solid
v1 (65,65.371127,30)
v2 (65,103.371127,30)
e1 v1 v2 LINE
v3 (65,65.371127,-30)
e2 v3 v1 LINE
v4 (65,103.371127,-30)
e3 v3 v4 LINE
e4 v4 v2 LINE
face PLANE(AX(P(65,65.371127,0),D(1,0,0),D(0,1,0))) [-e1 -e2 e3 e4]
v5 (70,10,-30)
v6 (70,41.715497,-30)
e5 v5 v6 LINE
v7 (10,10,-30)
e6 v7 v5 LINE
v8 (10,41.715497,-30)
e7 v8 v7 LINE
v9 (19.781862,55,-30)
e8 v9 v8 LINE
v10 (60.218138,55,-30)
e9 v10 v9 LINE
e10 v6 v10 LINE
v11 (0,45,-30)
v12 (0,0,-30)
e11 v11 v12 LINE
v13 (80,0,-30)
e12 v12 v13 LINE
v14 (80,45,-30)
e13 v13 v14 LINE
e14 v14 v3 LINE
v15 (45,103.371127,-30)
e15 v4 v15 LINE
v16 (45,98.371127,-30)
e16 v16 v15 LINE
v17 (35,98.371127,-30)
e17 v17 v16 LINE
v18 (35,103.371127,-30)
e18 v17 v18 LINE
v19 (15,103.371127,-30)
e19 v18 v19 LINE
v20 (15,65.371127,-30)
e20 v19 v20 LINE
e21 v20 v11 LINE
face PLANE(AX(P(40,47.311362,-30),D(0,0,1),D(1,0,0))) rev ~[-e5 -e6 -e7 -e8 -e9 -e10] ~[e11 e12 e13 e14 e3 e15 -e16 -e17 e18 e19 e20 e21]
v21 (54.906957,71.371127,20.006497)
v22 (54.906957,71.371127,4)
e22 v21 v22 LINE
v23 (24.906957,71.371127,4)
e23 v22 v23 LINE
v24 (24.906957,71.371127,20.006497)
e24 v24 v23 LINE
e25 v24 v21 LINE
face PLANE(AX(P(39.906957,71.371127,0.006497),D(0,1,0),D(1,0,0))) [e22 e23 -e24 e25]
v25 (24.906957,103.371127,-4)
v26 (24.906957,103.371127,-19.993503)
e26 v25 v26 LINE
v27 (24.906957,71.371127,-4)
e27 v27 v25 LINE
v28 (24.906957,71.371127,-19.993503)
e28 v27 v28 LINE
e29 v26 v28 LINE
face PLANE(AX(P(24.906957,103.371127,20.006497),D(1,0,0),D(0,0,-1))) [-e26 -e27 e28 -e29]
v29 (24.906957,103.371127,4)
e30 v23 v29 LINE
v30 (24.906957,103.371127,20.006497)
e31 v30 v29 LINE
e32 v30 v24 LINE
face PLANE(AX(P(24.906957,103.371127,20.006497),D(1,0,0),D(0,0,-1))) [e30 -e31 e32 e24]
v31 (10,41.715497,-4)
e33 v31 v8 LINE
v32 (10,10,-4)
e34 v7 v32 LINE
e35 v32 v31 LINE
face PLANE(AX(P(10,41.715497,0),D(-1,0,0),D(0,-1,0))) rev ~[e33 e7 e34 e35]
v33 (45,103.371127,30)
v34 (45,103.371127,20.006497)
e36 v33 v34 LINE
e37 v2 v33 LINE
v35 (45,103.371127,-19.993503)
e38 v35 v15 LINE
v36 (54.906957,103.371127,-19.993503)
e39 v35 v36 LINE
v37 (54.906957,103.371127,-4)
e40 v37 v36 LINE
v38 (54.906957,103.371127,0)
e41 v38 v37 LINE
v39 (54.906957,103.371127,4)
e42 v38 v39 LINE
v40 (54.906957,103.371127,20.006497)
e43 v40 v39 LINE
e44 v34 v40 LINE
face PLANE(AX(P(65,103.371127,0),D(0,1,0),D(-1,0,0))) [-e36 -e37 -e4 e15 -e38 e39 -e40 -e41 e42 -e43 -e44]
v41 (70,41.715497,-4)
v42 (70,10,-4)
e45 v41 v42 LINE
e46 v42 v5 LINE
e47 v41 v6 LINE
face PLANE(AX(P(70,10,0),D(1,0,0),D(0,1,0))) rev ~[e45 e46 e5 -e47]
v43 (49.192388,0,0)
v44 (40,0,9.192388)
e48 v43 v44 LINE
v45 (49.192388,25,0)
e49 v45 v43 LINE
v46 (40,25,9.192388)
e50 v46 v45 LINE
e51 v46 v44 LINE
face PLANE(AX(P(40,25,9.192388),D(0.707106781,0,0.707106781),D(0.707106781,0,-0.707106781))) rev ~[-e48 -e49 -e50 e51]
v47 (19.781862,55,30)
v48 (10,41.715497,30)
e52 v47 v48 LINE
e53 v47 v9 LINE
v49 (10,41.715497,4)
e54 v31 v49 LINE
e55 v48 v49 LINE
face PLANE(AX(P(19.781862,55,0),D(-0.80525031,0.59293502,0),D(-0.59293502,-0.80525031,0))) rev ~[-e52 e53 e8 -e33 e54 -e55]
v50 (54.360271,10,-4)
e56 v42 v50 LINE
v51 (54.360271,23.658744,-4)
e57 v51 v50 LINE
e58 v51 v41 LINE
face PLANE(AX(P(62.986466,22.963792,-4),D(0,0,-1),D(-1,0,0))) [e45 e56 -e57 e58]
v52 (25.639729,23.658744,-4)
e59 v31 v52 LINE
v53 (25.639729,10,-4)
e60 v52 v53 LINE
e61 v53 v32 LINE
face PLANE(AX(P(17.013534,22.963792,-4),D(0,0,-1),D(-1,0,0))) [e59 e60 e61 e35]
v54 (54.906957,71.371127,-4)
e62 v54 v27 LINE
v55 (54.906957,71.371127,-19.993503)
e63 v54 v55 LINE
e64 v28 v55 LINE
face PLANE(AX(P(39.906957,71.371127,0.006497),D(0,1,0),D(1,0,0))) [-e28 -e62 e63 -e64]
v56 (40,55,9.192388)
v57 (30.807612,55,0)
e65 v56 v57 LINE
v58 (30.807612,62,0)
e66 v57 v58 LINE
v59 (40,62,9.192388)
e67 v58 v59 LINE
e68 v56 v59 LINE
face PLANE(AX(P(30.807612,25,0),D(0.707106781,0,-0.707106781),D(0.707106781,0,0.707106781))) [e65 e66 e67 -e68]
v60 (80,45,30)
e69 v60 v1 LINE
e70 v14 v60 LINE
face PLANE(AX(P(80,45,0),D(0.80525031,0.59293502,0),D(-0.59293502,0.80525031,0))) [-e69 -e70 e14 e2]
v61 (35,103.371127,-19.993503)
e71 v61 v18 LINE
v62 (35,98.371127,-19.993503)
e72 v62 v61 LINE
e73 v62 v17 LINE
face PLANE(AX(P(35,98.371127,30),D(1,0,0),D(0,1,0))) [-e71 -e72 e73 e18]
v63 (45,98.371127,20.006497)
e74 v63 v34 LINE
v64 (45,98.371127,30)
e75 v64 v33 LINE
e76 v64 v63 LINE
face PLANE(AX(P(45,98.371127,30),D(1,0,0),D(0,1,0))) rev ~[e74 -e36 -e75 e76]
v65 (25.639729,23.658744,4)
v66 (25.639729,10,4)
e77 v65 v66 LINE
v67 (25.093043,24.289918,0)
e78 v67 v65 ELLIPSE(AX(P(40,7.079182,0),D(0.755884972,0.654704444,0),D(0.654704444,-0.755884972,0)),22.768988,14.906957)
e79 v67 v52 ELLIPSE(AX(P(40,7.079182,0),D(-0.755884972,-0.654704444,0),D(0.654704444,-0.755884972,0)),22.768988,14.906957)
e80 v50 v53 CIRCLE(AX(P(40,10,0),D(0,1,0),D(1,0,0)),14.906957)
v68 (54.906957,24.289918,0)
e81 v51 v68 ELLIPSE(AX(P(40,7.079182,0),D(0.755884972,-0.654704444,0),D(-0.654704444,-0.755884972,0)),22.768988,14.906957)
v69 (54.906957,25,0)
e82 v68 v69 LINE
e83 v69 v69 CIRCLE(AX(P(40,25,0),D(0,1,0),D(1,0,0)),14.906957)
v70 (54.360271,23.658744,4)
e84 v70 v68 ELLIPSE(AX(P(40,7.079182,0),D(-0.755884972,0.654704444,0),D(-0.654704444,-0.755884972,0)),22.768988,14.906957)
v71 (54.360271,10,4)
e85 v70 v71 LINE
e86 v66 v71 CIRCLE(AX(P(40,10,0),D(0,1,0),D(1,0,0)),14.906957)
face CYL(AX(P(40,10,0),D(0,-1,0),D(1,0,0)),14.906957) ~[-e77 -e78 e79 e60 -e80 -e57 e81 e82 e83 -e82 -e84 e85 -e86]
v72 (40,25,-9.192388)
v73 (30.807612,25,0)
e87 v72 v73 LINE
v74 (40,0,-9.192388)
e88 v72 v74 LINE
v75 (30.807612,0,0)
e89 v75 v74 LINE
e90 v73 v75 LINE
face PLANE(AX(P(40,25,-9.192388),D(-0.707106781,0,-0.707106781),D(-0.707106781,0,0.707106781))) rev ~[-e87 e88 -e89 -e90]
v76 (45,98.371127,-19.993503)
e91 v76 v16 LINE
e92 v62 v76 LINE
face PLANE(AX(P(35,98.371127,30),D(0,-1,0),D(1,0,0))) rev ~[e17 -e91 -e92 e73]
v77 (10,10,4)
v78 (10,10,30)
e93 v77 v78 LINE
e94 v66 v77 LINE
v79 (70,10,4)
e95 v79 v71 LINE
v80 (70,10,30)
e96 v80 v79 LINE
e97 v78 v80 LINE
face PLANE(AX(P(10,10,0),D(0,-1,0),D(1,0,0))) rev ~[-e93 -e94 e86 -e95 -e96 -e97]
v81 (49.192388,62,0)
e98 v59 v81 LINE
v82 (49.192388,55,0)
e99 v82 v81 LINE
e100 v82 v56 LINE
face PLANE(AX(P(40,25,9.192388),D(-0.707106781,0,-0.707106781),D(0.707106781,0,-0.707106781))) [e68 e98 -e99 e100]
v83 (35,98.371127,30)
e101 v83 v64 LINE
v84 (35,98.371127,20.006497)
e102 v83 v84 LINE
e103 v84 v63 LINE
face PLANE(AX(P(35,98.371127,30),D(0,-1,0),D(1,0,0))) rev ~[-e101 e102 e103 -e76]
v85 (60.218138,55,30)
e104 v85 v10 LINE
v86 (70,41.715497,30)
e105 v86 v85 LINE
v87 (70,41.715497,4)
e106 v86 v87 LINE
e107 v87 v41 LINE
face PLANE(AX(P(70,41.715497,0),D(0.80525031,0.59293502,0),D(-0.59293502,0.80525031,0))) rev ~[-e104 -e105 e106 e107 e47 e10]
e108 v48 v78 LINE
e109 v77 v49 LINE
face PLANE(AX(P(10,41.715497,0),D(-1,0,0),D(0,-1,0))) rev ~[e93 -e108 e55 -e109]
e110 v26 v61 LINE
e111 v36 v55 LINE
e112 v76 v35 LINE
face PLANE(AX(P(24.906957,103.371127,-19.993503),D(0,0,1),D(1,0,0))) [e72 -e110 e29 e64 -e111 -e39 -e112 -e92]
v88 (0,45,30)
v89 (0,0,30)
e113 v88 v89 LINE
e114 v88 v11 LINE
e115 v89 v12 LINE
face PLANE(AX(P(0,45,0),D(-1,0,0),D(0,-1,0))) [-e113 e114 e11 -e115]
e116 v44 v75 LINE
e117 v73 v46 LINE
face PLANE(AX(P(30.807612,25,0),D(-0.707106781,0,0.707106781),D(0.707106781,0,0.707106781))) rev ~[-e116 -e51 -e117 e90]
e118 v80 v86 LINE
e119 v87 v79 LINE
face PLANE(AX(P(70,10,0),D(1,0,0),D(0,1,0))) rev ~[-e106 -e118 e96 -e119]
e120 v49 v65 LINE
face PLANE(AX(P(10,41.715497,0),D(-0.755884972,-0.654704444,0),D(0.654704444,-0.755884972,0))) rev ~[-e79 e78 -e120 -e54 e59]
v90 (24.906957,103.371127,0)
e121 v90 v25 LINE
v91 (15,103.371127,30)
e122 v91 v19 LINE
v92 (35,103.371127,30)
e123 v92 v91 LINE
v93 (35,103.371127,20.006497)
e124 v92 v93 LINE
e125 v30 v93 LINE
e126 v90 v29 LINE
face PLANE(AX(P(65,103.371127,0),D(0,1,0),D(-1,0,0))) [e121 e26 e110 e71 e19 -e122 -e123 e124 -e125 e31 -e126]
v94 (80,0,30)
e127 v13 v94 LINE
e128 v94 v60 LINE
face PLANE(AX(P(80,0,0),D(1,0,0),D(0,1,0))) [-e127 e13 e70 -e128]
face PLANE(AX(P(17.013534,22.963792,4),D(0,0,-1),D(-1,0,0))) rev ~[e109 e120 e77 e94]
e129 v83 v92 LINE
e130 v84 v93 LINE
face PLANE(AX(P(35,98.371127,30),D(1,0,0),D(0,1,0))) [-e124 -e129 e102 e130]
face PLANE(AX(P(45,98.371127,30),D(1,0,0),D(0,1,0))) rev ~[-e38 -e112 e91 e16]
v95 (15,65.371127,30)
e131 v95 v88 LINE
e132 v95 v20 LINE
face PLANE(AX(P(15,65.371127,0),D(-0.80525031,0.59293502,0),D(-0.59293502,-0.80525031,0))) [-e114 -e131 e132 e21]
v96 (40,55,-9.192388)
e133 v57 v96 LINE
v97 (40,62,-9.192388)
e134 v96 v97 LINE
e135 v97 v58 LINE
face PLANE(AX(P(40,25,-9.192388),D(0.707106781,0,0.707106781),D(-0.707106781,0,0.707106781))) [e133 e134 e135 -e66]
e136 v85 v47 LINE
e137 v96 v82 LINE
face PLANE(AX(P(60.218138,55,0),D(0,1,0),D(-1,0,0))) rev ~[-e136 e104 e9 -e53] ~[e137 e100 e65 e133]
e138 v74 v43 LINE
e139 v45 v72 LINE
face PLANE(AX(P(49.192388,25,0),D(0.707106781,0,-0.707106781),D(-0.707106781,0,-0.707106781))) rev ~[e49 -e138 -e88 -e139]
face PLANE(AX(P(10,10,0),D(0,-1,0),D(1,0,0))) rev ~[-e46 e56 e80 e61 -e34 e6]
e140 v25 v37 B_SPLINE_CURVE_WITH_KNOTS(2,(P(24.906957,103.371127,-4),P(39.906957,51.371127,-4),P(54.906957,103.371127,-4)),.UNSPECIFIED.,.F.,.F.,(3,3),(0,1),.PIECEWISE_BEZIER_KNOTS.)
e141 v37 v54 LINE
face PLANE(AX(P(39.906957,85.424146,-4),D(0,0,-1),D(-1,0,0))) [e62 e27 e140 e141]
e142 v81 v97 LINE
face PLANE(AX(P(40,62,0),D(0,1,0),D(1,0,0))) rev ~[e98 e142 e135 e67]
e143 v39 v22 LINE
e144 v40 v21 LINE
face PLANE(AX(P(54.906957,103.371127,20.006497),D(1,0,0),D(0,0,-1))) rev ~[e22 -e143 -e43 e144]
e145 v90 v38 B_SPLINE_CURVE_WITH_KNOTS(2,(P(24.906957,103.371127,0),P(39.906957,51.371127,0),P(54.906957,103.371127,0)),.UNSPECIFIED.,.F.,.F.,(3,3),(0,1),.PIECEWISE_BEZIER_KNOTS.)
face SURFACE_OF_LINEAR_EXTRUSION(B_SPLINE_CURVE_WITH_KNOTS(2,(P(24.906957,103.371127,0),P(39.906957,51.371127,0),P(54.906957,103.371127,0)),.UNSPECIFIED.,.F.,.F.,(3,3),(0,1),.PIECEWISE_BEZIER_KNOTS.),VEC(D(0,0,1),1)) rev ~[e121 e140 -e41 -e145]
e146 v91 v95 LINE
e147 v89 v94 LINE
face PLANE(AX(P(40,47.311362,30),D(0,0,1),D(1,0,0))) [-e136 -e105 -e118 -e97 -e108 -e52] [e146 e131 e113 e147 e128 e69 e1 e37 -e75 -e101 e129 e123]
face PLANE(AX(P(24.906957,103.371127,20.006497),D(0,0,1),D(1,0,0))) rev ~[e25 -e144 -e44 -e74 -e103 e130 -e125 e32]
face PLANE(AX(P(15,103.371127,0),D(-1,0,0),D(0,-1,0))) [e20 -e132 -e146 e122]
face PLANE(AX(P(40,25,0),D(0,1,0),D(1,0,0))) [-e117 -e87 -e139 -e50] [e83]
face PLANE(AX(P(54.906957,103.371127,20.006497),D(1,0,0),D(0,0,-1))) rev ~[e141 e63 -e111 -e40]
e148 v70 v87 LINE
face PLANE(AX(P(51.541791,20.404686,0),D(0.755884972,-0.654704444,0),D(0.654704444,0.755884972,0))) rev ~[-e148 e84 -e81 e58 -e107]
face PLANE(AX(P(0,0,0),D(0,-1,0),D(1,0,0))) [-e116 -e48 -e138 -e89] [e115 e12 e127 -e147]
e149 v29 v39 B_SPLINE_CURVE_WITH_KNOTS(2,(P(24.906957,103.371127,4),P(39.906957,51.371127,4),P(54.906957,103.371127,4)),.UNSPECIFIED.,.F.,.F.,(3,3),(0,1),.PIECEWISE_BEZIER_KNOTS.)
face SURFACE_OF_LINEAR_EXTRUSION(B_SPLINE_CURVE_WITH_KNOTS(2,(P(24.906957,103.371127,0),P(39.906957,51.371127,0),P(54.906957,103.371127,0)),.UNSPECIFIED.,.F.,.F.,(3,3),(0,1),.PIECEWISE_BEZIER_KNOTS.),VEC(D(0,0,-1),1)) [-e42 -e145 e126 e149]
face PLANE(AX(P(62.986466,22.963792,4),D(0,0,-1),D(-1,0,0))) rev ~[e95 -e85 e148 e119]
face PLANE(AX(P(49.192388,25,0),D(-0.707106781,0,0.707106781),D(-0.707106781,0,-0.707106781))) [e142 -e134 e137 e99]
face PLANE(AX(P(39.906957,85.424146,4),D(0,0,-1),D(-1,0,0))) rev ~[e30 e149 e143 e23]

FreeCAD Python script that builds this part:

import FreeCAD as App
import Part
import Sketcher


def add_polygon(sketch, points):
    """Adds a closed chain of lines whose ends are joined by coincident constraints."""
    first, n = sketch.GeometryCount, len(points)
    for a, b in zip(points, points[1:] + points[:1]):
        sketch.addGeometry(Part.LineSegment(App.Vector(*a, 0), App.Vector(*b, 0)), False)
    for i in range(n):
        sketch.addConstraint(Sketcher.Constraint("Coincident", first + i, 2, first + (i + 1) % n, 1))

doc = App.newDocument("Part")
params = doc.addObject("Spreadsheet::Sheet", "Params")
for row, (alias, value) in enumerate([
    ("sketch1_width", "80 mm"),
    ("sketch1_width2", "50 mm"),
    ("sketch1_width3", "60 mm"),
    ("sketch1_height", "45 mm"),
    ("sketch1_height2", "38 mm"),
    ("pad1_length", "30 mm"),
    ("pad1_length2", "30 mm"),
    ("sketch2_width", "30 mm"),
    ("sketch2_height", "40 mm"),
    ("pocket1_length", "32 mm"),
    ("sketch3_width", "10 mm"),
    ("pad2_length", "15 mm"),
    ("sketch5_length", "13 mm"),
    ("pocket3_length", "37 mm"),
    ("pocket3_length2", "26 mm"),
    ("pad3_length", "4 mm"),
    ("pad3_length2", "4 mm"),
    ("sketch7_height", "32 mm"),
    ("pad4_length", "4 mm"),
    ("pad4_length2", "4 mm"),
], start=1):
    params.set(f"A{row}", alias)
    params.set(f"B{row}", "=" + value)
    params.setAlias(f"B{row}", alias)

body = doc.addObject("PartDesign::Body", "Body")

sketch1 = body.newObject("Sketcher::SketchObject", "Sketch")
sketch1.AttachmentSupport = (doc.getObject("XY_Plane"), [""])
sketch1.MapMode = "FlatFace"
add_polygon(sketch1, [(0, 0), (80, 0), (80, 45), (65, 65), (65, 103), (15, 103), (15, 65), (0, 45)])
add_polygon(sketch1, [(70, 10), (10, 10), (10, 42), (20, 55), (60, 55), (70, 42)])
sketch1.addConstraint([
    Sketcher.Constraint("Horizontal", 0),
    Sketcher.Constraint("Vertical", 1),
    Sketcher.Constraint("Vertical", 3),
    Sketcher.Constraint("Horizontal", 4),
    Sketcher.Constraint("Vertical", 5),
    Sketcher.Constraint("Vertical", 7),
    Sketcher.Constraint("Horizontal", 8),
    Sketcher.Constraint("Vertical", 9),
    Sketcher.Constraint("Horizontal", 11),
    Sketcher.Constraint("Vertical", 13),
    Sketcher.Constraint("Coincident", 7, 2, -1, 1),
    Sketcher.Constraint("Parallel", 6, 10),
    Sketcher.Constraint("Parallel", 2, 12),
    Sketcher.Constraint("Horizontal", 2, 2, 5, 2),
    Sketcher.Constraint("Horizontal", 1, 2, 6, 2),
    Sketcher.Constraint("Horizontal", 9, 2, 12, 2),
    Sketcher.Constraint("Equal", 2, 6),
    Sketcher.Constraint("DistanceX", 0, 1, 0, 2, 80.0),
    Sketcher.Constraint("DistanceX", 4, 2, 4, 1, 50.0),
    Sketcher.Constraint("DistanceX", 8, 2, 8, 1, 60.0),
    Sketcher.Constraint("DistanceY", 1, 1, 1, 2, 45.0),
    Sketcher.Constraint("DistanceY", 3, 1, 3, 2, 38.0),
    Sketcher.Constraint("DistanceX", -1, 1, 8, 2, 10.0),
    Sketcher.Constraint("DistanceY", -1, 1, 8, 2, 10.0),
    Sketcher.Constraint("DistanceY", -1, 1, 10, 2, 55.0),
    Sketcher.Constraint("Distance", 2, 25.297882),
    Sketcher.Constraint("Distance", 10, 16.497359),
])
sketch1.setExpression("Constraints[31]", "Params.sketch1_width")
sketch1.setExpression("Constraints[32]", "Params.sketch1_width2")
sketch1.setExpression("Constraints[33]", "Params.sketch1_width3")
sketch1.setExpression("Constraints[34]", "Params.sketch1_height")
sketch1.setExpression("Constraints[35]", "Params.sketch1_height2")
pad1 = body.newObject("PartDesign::Pad", "Pad")
pad1.Profile = sketch1
pad1.Type = "TwoLengths"
pad1.setExpression("Length", "Params.pad1_length")
pad1.setExpression("Length2", "Params.pad1_length2")

sketch2 = body.newObject("Sketcher::SketchObject", "Sketch001")
sketch2.AttachmentSupport = (doc.getObject("XZ_Plane"), [""])
sketch2.MapMode = "FlatFace"
sketch2.AttachmentOffset = App.Placement(App.Vector(0, 0, -103.371127), App.Rotation())
add_polygon(sketch2, [(25, -20), (25, 20), (55, 20), (55, -20)])
sketch2.addConstraint([
    Sketcher.Constraint("Vertical", 0),
    Sketcher.Constraint("Horizontal", 1),
    Sketcher.Constraint("Vertical", 2),
    Sketcher.Constraint("Horizontal", 3),
    Sketcher.Constraint("DistanceX", 1, 1, 1, 2, 30.0),
    Sketcher.Constraint("DistanceY", 0, 1, 0, 2, 40.0),
    Sketcher.Constraint("DistanceX", -1, 1, 0, 2, 24.906957),
    Sketcher.Constraint("DistanceY", -1, 1, 0, 2, 20.006497),
])
sketch2.setExpression("Constraints[8]", "Params.sketch2_width")
sketch2.setExpression("Constraints[9]", "Params.sketch2_height")
pocket1 = body.newObject("PartDesign::Pocket", "Pocket")
pocket1.Profile = sketch2
pocket1.setExpression("Length", "Params.pocket1_length")
pocket1.Reversed = True

sketch3 = body.newObject("Sketcher::SketchObject", "Sketch002")
sketch3.AttachmentSupport = (doc.getObject("XY_Plane"), [""])
sketch3.MapMode = "FlatFace"
sketch3.AttachmentOffset = App.Placement(App.Vector(0, 0, 30), App.Rotation())
add_polygon(sketch3, [(35, 108), (35, 98), (45, 98), (45, 108)])
sketch3.addConstraint([
    Sketcher.Constraint("Vertical", 0),
    Sketcher.Constraint("Horizontal", 1),
    Sketcher.Constraint("Vertical", 2),
    Sketcher.Constraint("Horizontal", 3),
    Sketcher.Constraint("Equal", 3, 0),
    Sketcher.Constraint("DistanceX", 1, 1, 1, 2, 10.0),
    Sketcher.Constraint("DistanceX", -1, 1, 0, 2, 35.0),
    Sketcher.Constraint("DistanceY", -1, 1, 0, 2, 98.371127),
])
sketch3.setExpression("Constraints[9]", "Params.sketch3_width")
pocket2 = body.newObject("PartDesign::Pocket", "Pocket001")
pocket2.Profile = sketch3
pocket2.Type = "ThroughAll"

sketch4 = body.newObject("Sketcher::SketchObject", "Sketch003")
sketch4.AttachmentSupport = (doc.getObject("XZ_Plane"), [""])
sketch4.MapMode = "FlatFace"
sketch4.AttachmentOffset = App.Placement(App.Vector(0, 0, -10), App.Rotation())
sketch4.addGeometry(Part.Circle(App.Vector(40, 0, 0), App.Vector(0, 0, 1), 15), False)
sketch4.addConstraint([
    Sketcher.Constraint("PointOnObject", 0, 3, -1),
    Sketcher.Constraint("DistanceX", -1, 1, 0, 3, 40.0),
    Sketcher.Constraint("Diameter", 0, 29.813915),
])
pad2 = body.newObject("PartDesign::Pad", "Pad001")
pad2.Profile = sketch4
pad2.setExpression("Length", "Params.pad2_length")
pad2.Reversed = True

sketch5 = body.newObject("Sketcher::SketchObject", "Sketch004")
sketch5.AttachmentSupport = (doc.getObject("XZ_Plane"), [""])
sketch5.MapMode = "FlatFace"
sketch5.AttachmentOffset = App.Placement(App.Vector(0, 0, -25), App.Rotation())
add_polygon(sketch5, [(40, -9), (31, 0), (40, 9), (49, 0)])
sketch5.addConstraint([
    Sketcher.Constraint("Symmetric", 1, 2, 3, 2, -1),
    Sketcher.Constraint("PointOnObject", 0, 2, -1),
    Sketcher.Constraint("PointOnObject", 2, 2, -1),
    Sketcher.Constraint("Perpendicular", 0, 1),
    Sketcher.Constraint("Perpendicular", 1, 2),
    Sketcher.Constraint("Distance", 0, 13.0),
    Sketcher.Constraint("DistanceX", -1, 1, 1, 2, 40.0),
])
sketch5.setExpression("Constraints[9]", "Params.sketch5_length")
pocket3 = body.newObject("PartDesign::Pocket", "Pocket002")
pocket3.Profile = sketch5
pocket3.Type = "TwoLengths"
pocket3.setExpression("Length", "Params.pocket3_length")
pocket3.setExpression("Length2", "Params.pocket3_length2")

sketch6 = body.newObject("Sketcher::SketchObject", "Sketch005")
sketch6.AttachmentSupport = (doc.getObject("XY_Plane"), [""])
sketch6.MapMode = "FlatFace"
add_polygon(sketch6, [(52, 10), (70, 10), (70, 42), (52, 20)])
add_polygon(sketch6, [(10, 42), (10, 10), (28, 10), (28, 20)])
sketch6.addConstraint([
    Sketcher.Constraint("Horizontal", 0),
    Sketcher.Constraint("Vertical", 1),
    Sketcher.Constraint("Vertical", 3),
    Sketcher.Constraint("Vertical", 4),
    Sketcher.Constraint("Horizontal", 5),
    Sketcher.Constraint("Vertical", 6),
    Sketcher.Constraint("Horizontal", 3, 2, 4, 2),
    Sketcher.Constraint("Horizontal", 2, 2, 6, 2),
    Sketcher.Constraint("Horizontal", 1, 2, 7, 2),
    Sketcher.Constraint("Equal", 0, 5),
    Sketcher.Constraint("DistanceX", -1, 1, 0, 2, 70.0),
    Sketcher.Constraint("DistanceY", -1, 1, 0, 2, 10.0),
    Sketcher.Constraint("DistanceX", -1, 1, 4, 2, 10.0),
    Sketcher.Constraint("DistanceX", 0, 1, 0, 2, 18.458209),
    Sketcher.Constraint("DistanceY", 1, 1, 1, 2, 31.715497),
    Sketcher.Constraint("DistanceY", 3, 2, 3, 1, 10.404686),
])
pad3 = body.newObject("PartDesign::Pad", "Pad002")
pad3.Profile = sketch6
pad3.Type = "TwoLengths"
pad3.setExpression("Length", "Params.pad3_length")
pad3.setExpression("Length2", "Params.pad3_length2")

sketch7 = body.newObject("Sketcher::SketchObject", "Sketch006")
sketch7.AttachmentSupport = (doc.getObject("XY_Plane"), [""])
sketch7.MapMode = "FlatFace"
sketch7.addGeometry([
    Part.LineSegment(App.Vector(54.906957, 71.371127, 0), App.Vector(54.906957, 103.371127, 0)),
    Part.BSplineCurve([App.Vector(24.906957, 103.371127, 0), App.Vector(39.906957, 51.371127, 0), App.Vector(54.906957, 103.371127, 0)], [3, 3], [0, 1], False, 2, [1, 1, 1], False),
    Part.LineSegment(App.Vector(24.906957, 103.371127, 0), App.Vector(24.906957, 71.371127, 0)),
    Part.LineSegment(App.Vector(24.906957, 71.371127, 0), App.Vector(54.906957, 71.371127, 0)),
], False)
sketch7.addConstraint([
    Sketcher.Constraint("Block", 1),
    Sketcher.Constraint("Coincident", 0, 2, 1, 2),
    Sketcher.Constraint("Coincident", 1, 1, 2, 1),
    Sketcher.Constraint("Coincident", 2, 2, 3, 1),
    Sketcher.Constraint("Coincident", 3, 2, 0, 1),
    Sketcher.Constraint("Vertical", 0),
    Sketcher.Constraint("Vertical", 2),
    Sketcher.Constraint("Horizontal", 3),
    Sketcher.Constraint("DistanceY", 0, 1, 0, 2, 32.0),
])
sketch7.setExpression("Constraints[8]", "Params.sketch7_height")
pad4 = body.newObject("PartDesign::Pad", "Pad003")
pad4.Profile = sketch7
pad4.Type = "TwoLengths"
pad4.setExpression("Length", "Params.pad4_length")
pad4.setExpression("Length2", "Params.pad4_length2")

doc.recompute()
